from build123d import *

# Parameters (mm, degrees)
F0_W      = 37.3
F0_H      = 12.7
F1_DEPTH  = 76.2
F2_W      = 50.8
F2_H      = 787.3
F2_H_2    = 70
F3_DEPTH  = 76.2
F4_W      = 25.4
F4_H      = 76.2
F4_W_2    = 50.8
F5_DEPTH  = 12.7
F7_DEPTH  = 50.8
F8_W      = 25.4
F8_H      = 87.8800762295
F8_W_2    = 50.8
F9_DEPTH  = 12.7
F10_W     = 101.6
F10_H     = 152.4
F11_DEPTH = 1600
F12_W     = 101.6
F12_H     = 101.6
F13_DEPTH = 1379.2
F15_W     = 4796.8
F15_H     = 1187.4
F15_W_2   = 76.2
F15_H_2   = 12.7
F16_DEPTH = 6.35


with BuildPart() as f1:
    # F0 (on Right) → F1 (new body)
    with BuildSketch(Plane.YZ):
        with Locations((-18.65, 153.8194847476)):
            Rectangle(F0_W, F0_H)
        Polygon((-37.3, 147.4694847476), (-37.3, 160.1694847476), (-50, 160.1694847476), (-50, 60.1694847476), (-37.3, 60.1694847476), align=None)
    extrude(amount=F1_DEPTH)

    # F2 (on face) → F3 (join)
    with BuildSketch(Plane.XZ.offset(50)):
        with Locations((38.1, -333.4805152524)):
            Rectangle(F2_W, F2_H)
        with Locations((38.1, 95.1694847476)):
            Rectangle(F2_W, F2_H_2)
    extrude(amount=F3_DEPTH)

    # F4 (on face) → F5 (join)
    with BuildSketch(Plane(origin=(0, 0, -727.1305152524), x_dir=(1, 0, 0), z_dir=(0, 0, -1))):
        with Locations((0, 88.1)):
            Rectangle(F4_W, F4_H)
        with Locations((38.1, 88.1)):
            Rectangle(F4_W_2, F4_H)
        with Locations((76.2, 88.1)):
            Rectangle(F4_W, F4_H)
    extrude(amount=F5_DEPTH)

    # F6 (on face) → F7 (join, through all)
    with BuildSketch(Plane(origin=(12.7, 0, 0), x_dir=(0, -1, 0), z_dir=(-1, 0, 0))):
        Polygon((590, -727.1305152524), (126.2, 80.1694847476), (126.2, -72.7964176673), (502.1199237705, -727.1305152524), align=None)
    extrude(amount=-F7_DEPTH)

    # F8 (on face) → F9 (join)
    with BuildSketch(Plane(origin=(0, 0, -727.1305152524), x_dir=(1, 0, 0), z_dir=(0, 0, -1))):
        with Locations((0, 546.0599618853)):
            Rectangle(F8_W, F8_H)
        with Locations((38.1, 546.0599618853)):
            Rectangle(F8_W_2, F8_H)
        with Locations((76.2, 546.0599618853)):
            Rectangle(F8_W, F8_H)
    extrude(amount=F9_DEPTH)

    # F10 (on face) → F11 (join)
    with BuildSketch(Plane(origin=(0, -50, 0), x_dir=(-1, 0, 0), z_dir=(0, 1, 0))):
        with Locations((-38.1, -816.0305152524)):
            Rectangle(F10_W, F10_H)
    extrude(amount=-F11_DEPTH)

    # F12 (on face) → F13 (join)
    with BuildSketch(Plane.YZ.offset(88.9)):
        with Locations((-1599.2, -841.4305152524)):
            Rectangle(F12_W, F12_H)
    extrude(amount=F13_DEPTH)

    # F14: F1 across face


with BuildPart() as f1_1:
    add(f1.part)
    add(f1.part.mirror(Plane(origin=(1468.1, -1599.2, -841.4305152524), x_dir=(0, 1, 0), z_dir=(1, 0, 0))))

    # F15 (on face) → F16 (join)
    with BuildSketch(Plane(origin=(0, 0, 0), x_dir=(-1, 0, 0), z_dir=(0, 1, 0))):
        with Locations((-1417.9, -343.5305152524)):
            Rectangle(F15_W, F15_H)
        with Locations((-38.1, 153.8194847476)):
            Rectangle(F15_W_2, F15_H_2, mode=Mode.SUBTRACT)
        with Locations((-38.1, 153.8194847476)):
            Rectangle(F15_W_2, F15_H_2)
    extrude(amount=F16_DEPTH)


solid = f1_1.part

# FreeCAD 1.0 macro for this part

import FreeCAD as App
import Part
import Sketcher
from FreeCAD import Vector

doc = App.newDocument("Part")
body = doc.addObject("PartDesign::Body", "Body")

sketch1 = body.newObject("Sketcher::SketchObject", "Sketch")
sketch1.AttachmentSupport = (doc.getObject("YZ_Plane"), [""])
sketch1.MapMode = "FlatFace"
sketch1.addGeometry(Part.LineSegment(Vector(-37, 147, 0), Vector(0, 147, 0)), False)
sketch1.addGeometry(Part.LineSegment(Vector(0, 147, 0), Vector(0, 160, 0)), False)
sketch1.addGeometry(Part.LineSegment(Vector(0, 160, 0), Vector(-50, 160, 0)), False)
sketch1.addGeometry(Part.LineSegment(Vector(-50, 160, 0), Vector(-50, 60, 0)), False)
sketch1.addGeometry(Part.LineSegment(Vector(-50, 60, 0), Vector(-37, 60, 0)), False)
sketch1.addGeometry(Part.LineSegment(Vector(-37, 60, 0), Vector(-37, 147, 0)), False)
sketch1.addConstraint(Sketcher.Constraint("Coincident", 0, 2, 1, 1))
sketch1.addConstraint(Sketcher.Constraint("Coincident", 1, 2, 2, 1))
sketch1.addConstraint(Sketcher.Constraint("Coincident", 2, 2, 3, 1))
sketch1.addConstraint(Sketcher.Constraint("Coincident", 3, 2, 4, 1))
sketch1.addConstraint(Sketcher.Constraint("Coincident", 4, 2, 5, 1))
sketch1.addConstraint(Sketcher.Constraint("Coincident", 5, 2, 0, 1))
sketch1.addConstraint(Sketcher.Constraint("Horizontal", 0))
sketch1.addConstraint(Sketcher.Constraint("Vertical", 1))
sketch1.addConstraint(Sketcher.Constraint("Horizontal", 2))
sketch1.addConstraint(Sketcher.Constraint("Vertical", 3))
sketch1.addConstraint(Sketcher.Constraint("Horizontal", 4))
sketch1.addConstraint(Sketcher.Constraint("Vertical", 5))
sketch1.addConstraint(Sketcher.Constraint("PointOnObject", 0, 2, -2))
sketch1.addConstraint(Sketcher.Constraint("Equal", 4, 1))
sketch1.addConstraint(Sketcher.Constraint("DistanceX", 2, 2, 2, 1, 50.0))
sketch1.addConstraint(Sketcher.Constraint("DistanceY", 3, 2, 3, 1, 100.0))
sketch1.addConstraint(Sketcher.Constraint("DistanceX", 0, 1, 0, 2, 37.3))
sketch1.addConstraint(Sketcher.Constraint("DistanceY", -1, 1, 0, 2, 147.469485))
pad1 = body.newObject("PartDesign::Pad", "Pad")
pad1.Profile = sketch1
pad1.Length = 76.2

sketch2 = body.newObject("Sketcher::SketchObject", "Sketch001")
sketch2.AttachmentSupport = (doc.getObject("XZ_Plane"), [""])
sketch2.MapMode = "FlatFace"
sketch2.AttachmentOffset = App.Placement(Vector(0, 0, 50), App.Rotation())
sketch2.addGeometry(Part.LineSegment(Vector(13, -727, 0), Vector(64, -727, 0)), False)
sketch2.addGeometry(Part.LineSegment(Vector(64, -727, 0), Vector(64, 130, 0)), False)
sketch2.addGeometry(Part.LineSegment(Vector(64, 130, 0), Vector(13, 130, 0)), False)
sketch2.addGeometry(Part.LineSegment(Vector(13, 130, 0), Vector(13, -727, 0)), False)
sketch2.addConstraint(Sketcher.Constraint("Coincident", 0, 2, 1, 1))
sketch2.addConstraint(Sketcher.Constraint("Coincident", 1, 2, 2, 1))
sketch2.addConstraint(Sketcher.Constraint("Coincident", 2, 2, 3, 1))
sketch2.addConstraint(Sketcher.Constraint("Coincident", 3, 2, 0, 1))
sketch2.addConstraint(Sketcher.Constraint("Horizontal", 0))
sketch2.addConstraint(Sketcher.Constraint("Vertical", 1))
sketch2.addConstraint(Sketcher.Constraint("Horizontal", 2))
sketch2.addConstraint(Sketcher.Constraint("Vertical", 3))
sketch2.addConstraint(Sketcher.Constraint("DistanceX", 0, 1, 0, 2, 50.8))
sketch2.addConstraint(Sketcher.Constraint("DistanceY", 1, 1, 1, 2, 857.3))
sketch2.addConstraint(Sketcher.Constraint("DistanceX", -1, 1, 0, 2, 63.5))
sketch2.addConstraint(Sketcher.Constraint("DistanceY", 0, 2, -1, 1, 727.130515))
pad2 = body.newObject("PartDesign::Pad", "Pad001")
pad2.Profile = sketch2
pad2.Length = 76.2

sketch3 = body.newObject("Sketcher::SketchObject", "Sketch002")
sketch3.AttachmentSupport = (doc.getObject("XY_Plane"), [""])
sketch3.MapMode = "FlatFace"
sketch3.AttachmentOffset = App.Placement(Vector(0, 0, -727.130515), App.Rotation())
sketch3.addGeometry(Part.LineSegment(Vector(-13, -126, 0), Vector(-13, -50, 0)), False)
sketch3.addGeometry(Part.LineSegment(Vector(-13, -50, 0), Vector(89, -50, 0)), False)
sketch3.addGeometry(Part.LineSegment(Vector(89, -50, 0), Vector(89, -126, 0)), False)
sketch3.addGeometry(Part.LineSegment(Vector(89, -126, 0), Vector(-13, -126, 0)), False)
sketch3.addConstraint(Sketcher.Constraint("Coincident", 0, 2, 1, 1))
sketch3.addConstraint(Sketcher.Constraint("Coincident", 1, 2, 2, 1))
sketch3.addConstraint(Sketcher.Constraint("Coincident", 2, 2, 3, 1))
sketch3.addConstraint(Sketcher.Constraint("Coincident", 3, 2, 0, 1))
sketch3.addConstraint(Sketcher.Constraint("Vertical", 0))
sketch3.addConstraint(Sketcher.Constraint("Horizontal", 1))
sketch3.addConstraint(Sketcher.Constraint("Vertical", 2))
sketch3.addConstraint(Sketcher.Constraint("Horizontal", 3))
sketch3.addConstraint(Sketcher.Constraint("DistanceX", 1, 1, 1, 2, 101.6))
sketch3.addConstraint(Sketcher.Constraint("DistanceY", 0, 1, 0, 2, 76.2))
sketch3.addConstraint(Sketcher.Constraint("DistanceY", 0, 2, -1, 1, 50.0))
sketch3.addConstraint(Sketcher.Constraint("DistanceX", 0, 2, -1, 1, 12.7))
pad3 = body.newObject("PartDesign::Pad", "Pad002")
pad3.Profile = sketch3
pad3.Length = 12.7
pad3.Reversed = True

sketch4 = body.newObject("Sketcher::SketchObject", "Sketch003")
sketch4.AttachmentSupport = (doc.getObject("YZ_Plane"), [""])
sketch4.MapMode = "FlatFace"
sketch4.AttachmentOffset = App.Placement(Vector(0, 0, 12.7), App.Rotation())
sketch4.addGeometry(Part.LineSegment(Vector(-590, -727, 0), Vector(-126, 80, 0)), False)
sketch4.addGeometry(Part.LineSegment(Vector(-126, 80, 0), Vector(-126, -73, 0)), False)
sketch4.addGeometry(Part.LineSegment(Vector(-126, -73, 0), Vector(-502, -727, 0)), False)
sketch4.addGeometry(Part.LineSegment(Vector(-502, -727, 0), Vector(-590, -727, 0)), False)
sketch4.addConstraint(Sketcher.Constraint("Coincident", 0, 2, 1, 1))
sketch4.addConstraint(Sketcher.Constraint("Coincident", 1, 2, 2, 1))
sketch4.addConstraint(Sketcher.Constraint("Coincident", 2, 2, 3, 1))
sketch4.addConstraint(Sketcher.Constraint("Coincident", 3, 2, 0, 1))
sketch4.addConstraint(Sketcher.Constraint("Vertical", 1))
sketch4.addConstraint(Sketcher.Constraint("Horizontal", 3))
sketch4.addConstraint(Sketcher.Constraint("Parallel", 0, 2))
sketch4.addConstraint(Sketcher.Constraint("DistanceX", 3, 2, -1, 1, 590.0))
sketch4.addConstraint(Sketcher.Constraint("DistanceX", 0, 2, -1, 1, 126.2))
sketch4.addConstraint(Sketcher.Constraint("DistanceY", 2, 2, 0, 2, 807.3))
sketch4.addConstraint(Sketcher.Constraint("DistanceX", 3, 2, 3, 1, 87.880076))
sketch4.addConstraint(Sketcher.Constraint("DistanceY", -1, 1, 0, 2, 80.169485))
pad4 = body.newObject("PartDesign::Pad", "Pad003")
pad4.Profile = sketch4
pad4.Length = 50.8

sketch5 = body.newObject("Sketcher::SketchObject", "Sketch004")
sketch5.AttachmentSupport = (doc.getObject("XY_Plane"), [""])
sketch5.MapMode = "FlatFace"
sketch5.AttachmentOffset = App.Placement(Vector(0, 0, -727.130515), App.Rotation())
sketch5.addGeometry(Part.LineSegment(Vector(-13, -590, 0), Vector(-13, -502, 0)), False)
sketch5.addGeometry(Part.LineSegment(Vector(-13, -502, 0), Vector(89, -502, 0)), False)
sketch5.addGeometry(Part.LineSegment(Vector(89, -502, 0), Vector(89, -590, 0)), False)
sketch5.addGeometry(Part.LineSegment(Vector(89, -590, 0), Vector(-13, -590, 0)), False)
sketch5.addConstraint(Sketcher.Constraint("Coincident", 0, 2, 1, 1))
sketch5.addConstraint(Sketcher.Constraint("Coincident", 1, 2, 2, 1))
sketch5.addConstraint(Sketcher.Constraint("Coincident", 2, 2, 3, 1))
sketch5.addConstraint(Sketcher.Constraint("Coincident", 3, 2, 0, 1))
sketch5.addConstraint(Sketcher.Constraint("Vertical", 0))
sketch5.addConstraint(Sketcher.Constraint("Horizontal", 1))
sketch5.addConstraint(Sketcher.Constraint("Vertical", 2))
sketch5.addConstraint(Sketcher.Constraint("Horizontal", 3))
sketch5.addConstraint(Sketcher.Constraint("DistanceX", 1, 1, 1, 2, 101.6))
sketch5.addConstraint(Sketcher.Constraint("DistanceY", 2, 2, -1, 1, 590.0))
sketch5.addConstraint(Sketcher.Constraint("DistanceX", 0, 2, -1, 1, 12.7))
sketch5.addConstraint(Sketcher.Constraint("DistanceY", 0, 1, 0, 2, 87.880076))
pad5 = body.newObject("PartDesign::Pad", "Pad004")
pad5.Profile = sketch5
pad5.Length = 12.7
pad5.Reversed = True

sketch6 = body.newObject("Sketcher::SketchObject", "Sketch005")
sketch6.AttachmentSupport = (doc.getObject("XZ_Plane"), [""])
sketch6.MapMode = "FlatFace"
sketch6.AttachmentOffset = App.Placement(Vector(0, 0, 50), App.Rotation())
sketch6.addGeometry(Part.LineSegment(Vector(89, -740, 0), Vector(89, -892, 0)), False)
sketch6.addGeometry(Part.LineSegment(Vector(89, -892, 0), Vector(-13, -892, 0)), False)
sketch6.addGeometry(Part.LineSegment(Vector(-13, -892, 0), Vector(-13, -740, 0)), False)
sketch6.addGeometry(Part.LineSegment(Vector(-13, -740, 0), Vector(89, -740, 0)), False)
sketch6.addConstraint(Sketcher.Constraint("Coincident", 0, 2, 1, 1))
sketch6.addConstraint(Sketcher.Constraint("Coincident", 1, 2, 2, 1))
sketch6.addConstraint(Sketcher.Constraint("Coincident", 2, 2, 3, 1))
sketch6.addConstraint(Sketcher.Constraint("Coincident", 3, 2, 0, 1))
sketch6.addConstraint(Sketcher.Constraint("Vertical", 0))
sketch6.addConstraint(Sketcher.Constraint("Horizontal", 1))
sketch6.addConstraint(Sketcher.Constraint("Vertical", 2))
sketch6.addConstraint(Sketcher.Constraint("Horizontal", 3))
sketch6.addConstraint(Sketcher.Constraint("DistanceX", 1, 2, 1, 1, 101.6))
sketch6.addConstraint(Sketcher.Constraint("DistanceY", 0, 2, 0, 1, 152.4))
sketch6.addConstraint(Sketcher.Constraint("DistanceX", -1, 1, 0, 2, 88.9))
sketch6.addConstraint(Sketcher.Constraint("DistanceY", 0, 2, -1, 1, 892.230515))
pad6 = body.newObject("PartDesign::Pad", "Pad005")
pad6.Profile = sketch6
pad6.Length = 1600

sketch7 = body.newObject("Sketcher::SketchObject", "Sketch006")
sketch7.AttachmentSupport = (doc.getObject("YZ_Plane"), [""])
sketch7.MapMode = "FlatFace"
sketch7.AttachmentOffset = App.Placement(Vector(0, 0, 88.9), App.Rotation())
sketch7.addGeometry(Part.LineSegment(Vector(-1650, -791, 0), Vector(-1650, -892, 0)), False)
sketch7.addGeometry(Part.LineSegment(Vector(-1650, -892, 0), Vector(-1548, -892, 0)), False)
sketch7.addGeometry(Part.LineSegment(Vector(-1548, -892, 0), Vector(-1548, -791, 0)), False)
sketch7.addGeometry(Part.LineSegment(Vector(-1548, -791, 0), Vector(-1650, -791, 0)), False)
sketch7.addConstraint(Sketcher.Constraint("Coincident", 0, 2, 1, 1))
sketch7.addConstraint(Sketcher.Constraint("Coincident", 1, 2, 2, 1))
sketch7.addConstraint(Sketcher.Constraint("Coincident", 2, 2, 3, 1))
sketch7.addConstraint(Sketcher.Constraint("Coincident", 3, 2, 0, 1))
sketch7.addConstraint(Sketcher.Constraint("Vertical", 0))
sketch7.addConstraint(Sketcher.Constraint("Horizontal", 1))
sketch7.addConstraint(Sketcher.Constraint("Vertical", 2))
sketch7.addConstraint(Sketcher.Constraint("Horizontal", 3))
sketch7.addConstraint(Sketcher.Constraint("Equal", 3, 0))
sketch7.addConstraint(Sketcher.Constraint("DistanceX", 1, 1, 1, 2, 101.6))
sketch7.addConstraint(Sketcher.Constraint("DistanceX", 0, 2, -1, 1, 1650.0))
sketch7.addConstraint(Sketcher.Constraint("DistanceY", 0, 2, -1, 1, 892.230515))
pad7 = body.newObject("PartDesign::Pad", "Pad006")
pad7.Profile = sketch7
pad7.Length = 1379.2
body2 = doc.addObject("PartDesign::Body", "Body001")
doc.recompute()

body2.BaseFeature = body
doc.recompute()

mirroring = doc.addObject("Part::Mirroring", "Mirroring")
mirroring.Source = body
mirroring.Base = Vector(1468.1, -1599.2, -841.430515)
mirroring.Normal = Vector(1, 0, 0)
body3 = doc.addObject("PartDesign::Body", "Body002")
body3.BaseFeature = mirroring
boolean = body2.newObject("PartDesign::Boolean", "Boolean")
boolean.Type = "Fuse"
boolean.addObjects([body3])
doc.recompute()

sketch8 = body2.newObject("Sketcher::SketchObject", "Sketch007")
sketch8.AttachmentSupport = (doc.getObject("XZ_Plane001"), [""])
sketch8.MapMode = "FlatFace"
sketch8.addGeometry(Part.LineSegment(Vector(3816, 250, 0), Vector(3816, -937, 0)), False)
sketch8.addGeometry(Part.LineSegment(Vector(3816, -937, 0), Vector(-980, -937, 0)), False)
sketch8.addGeometry(Part.LineSegment(Vector(-980, -937, 0), Vector(-980, 250, 0)), False)
sketch8.addGeometry(Part.LineSegment(Vector(-980, 250, 0), Vector(3816, 250, 0)), False)
sketch8.addConstraint(Sketcher.Constraint("Coincident", 0, 2, 1, 1))
sketch8.addConstraint(Sketcher.Constraint("Coincident", 1, 2, 2, 1))
sketch8.addConstraint(Sketcher.Constraint("Coincident", 2, 2, 3, 1))
sketch8.addConstraint(Sketcher.Constraint("Coincident", 3, 2, 0, 1))
sketch8.addConstraint(Sketcher.Constraint("Vertical", 0))
sketch8.addConstraint(Sketcher.Constraint("Horizontal", 1))
sketch8.addConstraint(Sketcher.Constraint("Vertical", 2))
sketch8.addConstraint(Sketcher.Constraint("Horizontal", 3))
sketch8.addConstraint(Sketcher.Constraint("DistanceX", 1, 2, 1, 1, 4796.8))
sketch8.addConstraint(Sketcher.Constraint("DistanceY", 0, 2, 0, 1, 1187.4))
sketch8.addConstraint(Sketcher.Constraint("DistanceX", -1, 1, 0, 2, 3816.3))
sketch8.addConstraint(Sketcher.Constraint("DistanceY", 0, 2, -1, 1, 937.230515))
pad8 = body2.newObject("PartDesign::Pad", "Pad007")
pad8.Profile = sketch8
pad8.Length = 6.35
pad8.Reversed = True
mirroring.Visibility = False

doc.recompute()
